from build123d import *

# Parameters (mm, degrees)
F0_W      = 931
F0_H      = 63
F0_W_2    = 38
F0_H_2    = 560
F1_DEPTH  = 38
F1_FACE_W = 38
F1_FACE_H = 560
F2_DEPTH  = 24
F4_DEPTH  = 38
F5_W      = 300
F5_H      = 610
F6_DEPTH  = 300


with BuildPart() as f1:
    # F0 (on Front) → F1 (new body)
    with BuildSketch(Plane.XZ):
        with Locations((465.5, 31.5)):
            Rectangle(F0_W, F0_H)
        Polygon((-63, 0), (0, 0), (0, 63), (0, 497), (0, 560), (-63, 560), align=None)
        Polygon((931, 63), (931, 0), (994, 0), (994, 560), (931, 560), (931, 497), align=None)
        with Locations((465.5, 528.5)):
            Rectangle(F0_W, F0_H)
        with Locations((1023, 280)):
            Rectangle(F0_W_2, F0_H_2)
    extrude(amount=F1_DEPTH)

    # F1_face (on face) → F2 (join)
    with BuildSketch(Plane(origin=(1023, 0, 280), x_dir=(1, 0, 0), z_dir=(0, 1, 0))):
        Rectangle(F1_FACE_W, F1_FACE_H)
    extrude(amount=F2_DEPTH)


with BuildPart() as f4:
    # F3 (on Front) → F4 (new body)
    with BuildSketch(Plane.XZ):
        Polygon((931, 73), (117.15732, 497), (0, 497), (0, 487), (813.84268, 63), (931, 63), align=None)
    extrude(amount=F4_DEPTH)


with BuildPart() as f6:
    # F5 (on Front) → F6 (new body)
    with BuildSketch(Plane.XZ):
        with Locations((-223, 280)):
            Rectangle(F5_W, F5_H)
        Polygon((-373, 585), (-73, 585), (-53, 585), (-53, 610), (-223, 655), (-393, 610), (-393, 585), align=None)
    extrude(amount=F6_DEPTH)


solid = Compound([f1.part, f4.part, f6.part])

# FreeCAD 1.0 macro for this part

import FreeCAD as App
import Part
import Sketcher
Q = App.Units.Quantity

doc = App.newDocument("Part")
body = doc.addObject("PartDesign::Body", "Body")
body.AllowCompound = True

sketch1 = body.newObject("Sketcher::SketchObject", "Sketch")
sketch1.AttachmentSupport = (doc.getObject("XZ_Plane"), [""])
sketch1.MapMode = "FlatFace"
sketch1.addGeometry(Part.LineSegment(App.Vector(-63, 560, 0), App.Vector(-63, 0, 0)), False)
sketch1.addGeometry(Part.LineSegment(App.Vector(-63, 0, 0), App.Vector(994, 0, 0)), False)
sketch1.addGeometry(Part.LineSegment(App.Vector(994, 0, 0), App.Vector(994, 560, 0)), False)
sketch1.addGeometry(Part.LineSegment(App.Vector(994, 560, 0), App.Vector(-63, 560, 0)), False)
sketch1.addGeometry(Part.LineSegment(App.Vector(931, 63, 0), App.Vector(0, 63, 0)), False)
sketch1.addGeometry(Part.LineSegment(App.Vector(0, 63, 0), App.Vector(0, 497, 0)), False)
sketch1.addGeometry(Part.LineSegment(App.Vector(0, 497, 0), App.Vector(931, 497, 0)), False)
sketch1.addGeometry(Part.LineSegment(App.Vector(931, 497, 0), App.Vector(931, 63, 0)), False)
sketch1.addGeometry(Part.LineSegment(App.Vector(1004, 560, 0), App.Vector(1004, 0, 0)), False)
sketch1.addGeometry(Part.LineSegment(App.Vector(1004, 0, 0), App.Vector(1042, 0, 0)), False)
sketch1.addGeometry(Part.LineSegment(App.Vector(1042, 0, 0), App.Vector(1042, 560, 0)), False)
sketch1.addGeometry(Part.LineSegment(App.Vector(1042, 560, 0), App.Vector(1004, 560, 0)), False)
sketch1.addConstraint(Sketcher.Constraint("Coincident", 0, 2, 1, 1))
sketch1.addConstraint(Sketcher.Constraint("Coincident", 1, 2, 2, 1))
sketch1.addConstraint(Sketcher.Constraint("Coincident", 2, 2, 3, 1))
sketch1.addConstraint(Sketcher.Constraint("Coincident", 3, 2, 0, 1))
sketch1.addConstraint(Sketcher.Constraint("Coincident", 4, 2, 5, 1))
sketch1.addConstraint(Sketcher.Constraint("Coincident", 5, 2, 6, 1))
sketch1.addConstraint(Sketcher.Constraint("Coincident", 6, 2, 7, 1))
sketch1.addConstraint(Sketcher.Constraint("Coincident", 7, 2, 4, 1))
sketch1.addConstraint(Sketcher.Constraint("Coincident", 8, 2, 9, 1))
sketch1.addConstraint(Sketcher.Constraint("Coincident", 9, 2, 10, 1))
sketch1.addConstraint(Sketcher.Constraint("Coincident", 10, 2, 11, 1))
sketch1.addConstraint(Sketcher.Constraint("Coincident", 11, 2, 8, 1))
sketch1.addConstraint(Sketcher.Constraint("Vertical", 0))
sketch1.addConstraint(Sketcher.Constraint("Horizontal", 1))
sketch1.addConstraint(Sketcher.Constraint("Vertical", 2))
sketch1.addConstraint(Sketcher.Constraint("Horizontal", 3))
sketch1.addConstraint(Sketcher.Constraint("Horizontal", 4))
sketch1.addConstraint(Sketcher.Constraint("Vertical", 5))
sketch1.addConstraint(Sketcher.Constraint("Horizontal", 6))
sketch1.addConstraint(Sketcher.Constraint("Vertical", 7))
sketch1.addConstraint(Sketcher.Constraint("Vertical", 8))
sketch1.addConstraint(Sketcher.Constraint("Horizontal", 9))
sketch1.addConstraint(Sketcher.Constraint("Vertical", 10))
sketch1.addConstraint(Sketcher.Constraint("Horizontal", 11))
sketch1.addConstraint(Sketcher.Constraint("PointOnObject", 0, 2, -1))
sketch1.addConstraint(Sketcher.Constraint("PointOnObject", 4, 2, -2))
sketch1.addConstraint(Sketcher.Constraint("PointOnObject", 8, 2, -1))
sketch1.addConstraint(Sketcher.Constraint("Horizontal", 3, 2, 10, 2))
sketch1.addConstraint(Sketcher.Constraint("DistanceX", 1, 1, 1, 2, Q("1057 mm")))
sketch1.addConstraint(Sketcher.Constraint("DistanceX", 4, 2, 4, 1, Q("931 mm")))
sketch1.addConstraint(Sketcher.Constraint("DistanceX", 9, 1, 9, 2, Q("38 mm")))
sketch1.addConstraint(Sketcher.Constraint("DistanceY", 0, 2, 0, 1, Q("560 mm")))
sketch1.addConstraint(Sketcher.Constraint("DistanceY", 5, 1, 5, 2, Q("434 mm")))
sketch1.addConstraint(Sketcher.Constraint("DistanceX", 0, 2, -1, 1, Q("63 mm")))
sketch1.addConstraint(Sketcher.Constraint("DistanceY", -1, 1, 4, 2, Q("63 mm")))
sketch1.addConstraint(Sketcher.Constraint("DistanceX", -1, 1, 8, 2, Q("1004 mm")))
pad1 = body.newObject("PartDesign::Pad", "Pad")
pad1.Profile = sketch1
pad1.Length = 38

sketch2 = body.newObject("Sketcher::SketchObject", "Sketch001")
sketch2.AttachmentSupport = (doc.getObject("XZ_Plane"), [""])
sketch2.MapMode = "FlatFace"
sketch2.addGeometry(Part.LineSegment(App.Vector(1004, 0, 0), App.Vector(1004, 560, 0)), False)
sketch2.addGeometry(Part.LineSegment(App.Vector(1004, 560, 0), App.Vector(1042, 560, 0)), False)
sketch2.addGeometry(Part.LineSegment(App.Vector(1042, 560, 0), App.Vector(1042, 0, 0)), False)
sketch2.addGeometry(Part.LineSegment(App.Vector(1042, 0, 0), App.Vector(1004, 0, 0)), False)
sketch2.addConstraint(Sketcher.Constraint("Coincident", 0, 2, 1, 1))
sketch2.addConstraint(Sketcher.Constraint("Coincident", 1, 2, 2, 1))
sketch2.addConstraint(Sketcher.Constraint("Coincident", 2, 2, 3, 1))
sketch2.addConstraint(Sketcher.Constraint("Coincident", 3, 2, 0, 1))
sketch2.addConstraint(Sketcher.Constraint("Vertical", 0))
sketch2.addConstraint(Sketcher.Constraint("Horizontal", 1))
sketch2.addConstraint(Sketcher.Constraint("Vertical", 2))
sketch2.addConstraint(Sketcher.Constraint("Horizontal", 3))
sketch2.addConstraint(Sketcher.Constraint("PointOnObject", 2, 2, -1))
sketch2.addConstraint(Sketcher.Constraint("DistanceX", 1, 1, 1, 2, Q("38 mm")))
sketch2.addConstraint(Sketcher.Constraint("DistanceY", 0, 1, 0, 2, Q("560 mm")))
sketch2.addConstraint(Sketcher.Constraint("DistanceX", -1, 1, 0, 2, Q("1004 mm")))
pad2 = body.newObject("PartDesign::Pad", "Pad001")
pad2.Profile = sketch2
pad2.Length = 24
pad2.Reversed = True
body2 = doc.addObject("PartDesign::Body", "Body001")

sketch3 = body2.newObject("Sketcher::SketchObject", "Sketch002")
sketch3.AttachmentSupport = (doc.getObject("XZ_Plane001"), [""])
sketch3.MapMode = "FlatFace"
sketch3.addGeometry(Part.LineSegment(App.Vector(931, 73, 0), App.Vector(117, 497, 0)), False)
sketch3.addGeometry(Part.LineSegment(App.Vector(117, 497, 0), App.Vector(0, 497, 0)), False)
sketch3.addGeometry(Part.LineSegment(App.Vector(0, 497, 0), App.Vector(0, 487, 0)), False)
sketch3.addGeometry(Part.LineSegment(App.Vector(0, 487, 0), App.Vector(814, 63, 0)), False)
sketch3.addGeometry(Part.LineSegment(App.Vector(814, 63, 0), App.Vector(931, 63, 0)), False)
sketch3.addGeometry(Part.LineSegment(App.Vector(931, 63, 0), App.Vector(931, 73, 0)), False)
sketch3.addConstraint(Sketcher.Constraint("Coincident", 0, 2, 1, 1))
sketch3.addConstraint(Sketcher.Constraint("Coincident", 1, 2, 2, 1))
sketch3.addConstraint(Sketcher.Constraint("Coincident", 2, 2, 3, 1))
sketch3.addConstraint(Sketcher.Constraint("Coincident", 3, 2, 4, 1))
sketch3.addConstraint(Sketcher.Constraint("Coincident", 4, 2, 5, 1))
sketch3.addConstraint(Sketcher.Constraint("Coincident", 5, 2, 0, 1))
sketch3.addConstraint(Sketcher.Constraint("Horizontal", 1))
sketch3.addConstraint(Sketcher.Constraint("Vertical", 2))
sketch3.addConstraint(Sketcher.Constraint("Horizontal", 4))
sketch3.addConstraint(Sketcher.Constraint("Vertical", 5))
sketch3.addConstraint(Sketcher.Constraint("PointOnObject", 1, 2, -2))
sketch3.addConstraint(Sketcher.Constraint("Parallel", 0, 3))
sketch3.addConstraint(Sketcher.Constraint("Equal", 1, 4))
sketch3.addConstraint(Sketcher.Constraint("DistanceY", 2, 2, 2, 1, Q("10 mm")))
sketch3.addConstraint(Sketcher.Constraint("DistanceY", -1, 1, 0, 2, Q("497 mm")))
sketch3.addConstraint(Sketcher.Constraint("DistanceY", -1, 1, 3, 2, Q("63 mm")))
sketch3.addConstraint(Sketcher.Constraint("DistanceX", -1, 1, 4, 2, Q("931 mm")))
sketch3.addConstraint(Sketcher.Constraint("DistanceX", 1, 2, 1, 1, Q("117.15732 mm")))
pad3 = body2.newObject("PartDesign::Pad", "Pad002")
pad3.Profile = sketch3
pad3.Length = 38
body3 = doc.addObject("PartDesign::Body", "Body002")

sketch4 = body3.newObject("Sketcher::SketchObject", "Sketch003")
sketch4.AttachmentSupport = (doc.getObject("XZ_Plane002"), [""])
sketch4.MapMode = "FlatFace"
sketch4.addGeometry(Part.LineSegment(App.Vector(-373, 585, 0), App.Vector(-373, -25, 0)), False)
sketch4.addGeometry(Part.LineSegment(App.Vector(-373, -25, 0), App.Vector(-73, -25, 0)), False)
sketch4.addGeometry(Part.LineSegment(App.Vector(-73, -25, 0), App.Vector(-73, 585, 0)), False)
sketch4.addGeometry(Part.LineSegment(App.Vector(-73, 585, 0), App.Vector(-53, 585, 0)), False)
sketch4.addGeometry(Part.LineSegment(App.Vector(-53, 585, 0), App.Vector(-53, 610, 0)), False)
sketch4.addGeometry(Part.LineSegment(App.Vector(-53, 610, 0), App.Vector(-223, 655, 0)), False)
sketch4.addGeometry(Part.LineSegment(App.Vector(-223, 655, 0), App.Vector(-393, 610, 0)), False)
sketch4.addGeometry(Part.LineSegment(App.Vector(-393, 610, 0), App.Vector(-393, 585, 0)), False)
sketch4.addGeometry(Part.LineSegment(App.Vector(-393, 585, 0), App.Vector(-373, 585, 0)), False)
sketch4.addConstraint(Sketcher.Constraint("Coincident", 0, 2, 1, 1))
sketch4.addConstraint(Sketcher.Constraint("Coincident", 1, 2, 2, 1))
sketch4.addConstraint(Sketcher.Constraint("Coincident", 2, 2, 3, 1))
sketch4.addConstraint(Sketcher.Constraint("Coincident", 3, 2, 4, 1))
sketch4.addConstraint(Sketcher.Constraint("Coincident", 4, 2, 5, 1))
sketch4.addConstraint(Sketcher.Constraint("Coincident", 5, 2, 6, 1))
sketch4.addConstraint(Sketcher.Constraint("Coincident", 6, 2, 7, 1))
sketch4.addConstraint(Sketcher.Constraint("Coincident", 7, 2, 8, 1))
sketch4.addConstraint(Sketcher.Constraint("Coincident", 8, 2, 0, 1))
sketch4.addConstraint(Sketcher.Constraint("Vertical", 0))
sketch4.addConstraint(Sketcher.Constraint("Horizontal", 1))
sketch4.addConstraint(Sketcher.Constraint("Vertical", 2))
sketch4.addConstraint(Sketcher.Constraint("Horizontal", 3))
sketch4.addConstraint(Sketcher.Constraint("Vertical", 4))
sketch4.addConstraint(Sketcher.Constraint("Vertical", 7))
sketch4.addConstraint(Sketcher.Constraint("Horizontal", 8))
sketch4.addConstraint(Sketcher.Constraint("Horizontal", 4, 2, 6, 2))
sketch4.addConstraint(Sketcher.Constraint("Horizontal", 3, 2, 7, 2))
sketch4.addConstraint(Sketcher.Constraint("Equal", 3, 8))
sketch4.addConstraint(Sketcher.Constraint("Equal", 5, 6))
sketch4.addConstraint(Sketcher.Constraint("DistanceX", 1, 1, 1, 2, Q("300 mm")))
sketch4.addConstraint(Sketcher.Constraint("DistanceX", 3, 1, 3, 2, Q("20 mm")))
sketch4.addConstraint(Sketcher.Constraint("DistanceY", 0, 2, 0, 1, Q("610 mm")))
sketch4.addConstraint(Sketcher.Constraint("DistanceY", 4, 1, 4, 2, Q("25 mm")))
sketch4.addConstraint(Sketcher.Constraint("DistanceX", 0, 2, -1, 1, Q("373 mm")))
sketch4.addConstraint(Sketcher.Constraint("DistanceY", 0, 2, -1, 1, Q("25 mm")))
sketch4.addConstraint(Sketcher.Constraint("DistanceY", -1, 1, 5, 2, Q("655 mm")))
pad4 = body3.newObject("PartDesign::Pad", "Pad003")
pad4.Profile = sketch4
pad4.Length = 300

doc.recompute()
